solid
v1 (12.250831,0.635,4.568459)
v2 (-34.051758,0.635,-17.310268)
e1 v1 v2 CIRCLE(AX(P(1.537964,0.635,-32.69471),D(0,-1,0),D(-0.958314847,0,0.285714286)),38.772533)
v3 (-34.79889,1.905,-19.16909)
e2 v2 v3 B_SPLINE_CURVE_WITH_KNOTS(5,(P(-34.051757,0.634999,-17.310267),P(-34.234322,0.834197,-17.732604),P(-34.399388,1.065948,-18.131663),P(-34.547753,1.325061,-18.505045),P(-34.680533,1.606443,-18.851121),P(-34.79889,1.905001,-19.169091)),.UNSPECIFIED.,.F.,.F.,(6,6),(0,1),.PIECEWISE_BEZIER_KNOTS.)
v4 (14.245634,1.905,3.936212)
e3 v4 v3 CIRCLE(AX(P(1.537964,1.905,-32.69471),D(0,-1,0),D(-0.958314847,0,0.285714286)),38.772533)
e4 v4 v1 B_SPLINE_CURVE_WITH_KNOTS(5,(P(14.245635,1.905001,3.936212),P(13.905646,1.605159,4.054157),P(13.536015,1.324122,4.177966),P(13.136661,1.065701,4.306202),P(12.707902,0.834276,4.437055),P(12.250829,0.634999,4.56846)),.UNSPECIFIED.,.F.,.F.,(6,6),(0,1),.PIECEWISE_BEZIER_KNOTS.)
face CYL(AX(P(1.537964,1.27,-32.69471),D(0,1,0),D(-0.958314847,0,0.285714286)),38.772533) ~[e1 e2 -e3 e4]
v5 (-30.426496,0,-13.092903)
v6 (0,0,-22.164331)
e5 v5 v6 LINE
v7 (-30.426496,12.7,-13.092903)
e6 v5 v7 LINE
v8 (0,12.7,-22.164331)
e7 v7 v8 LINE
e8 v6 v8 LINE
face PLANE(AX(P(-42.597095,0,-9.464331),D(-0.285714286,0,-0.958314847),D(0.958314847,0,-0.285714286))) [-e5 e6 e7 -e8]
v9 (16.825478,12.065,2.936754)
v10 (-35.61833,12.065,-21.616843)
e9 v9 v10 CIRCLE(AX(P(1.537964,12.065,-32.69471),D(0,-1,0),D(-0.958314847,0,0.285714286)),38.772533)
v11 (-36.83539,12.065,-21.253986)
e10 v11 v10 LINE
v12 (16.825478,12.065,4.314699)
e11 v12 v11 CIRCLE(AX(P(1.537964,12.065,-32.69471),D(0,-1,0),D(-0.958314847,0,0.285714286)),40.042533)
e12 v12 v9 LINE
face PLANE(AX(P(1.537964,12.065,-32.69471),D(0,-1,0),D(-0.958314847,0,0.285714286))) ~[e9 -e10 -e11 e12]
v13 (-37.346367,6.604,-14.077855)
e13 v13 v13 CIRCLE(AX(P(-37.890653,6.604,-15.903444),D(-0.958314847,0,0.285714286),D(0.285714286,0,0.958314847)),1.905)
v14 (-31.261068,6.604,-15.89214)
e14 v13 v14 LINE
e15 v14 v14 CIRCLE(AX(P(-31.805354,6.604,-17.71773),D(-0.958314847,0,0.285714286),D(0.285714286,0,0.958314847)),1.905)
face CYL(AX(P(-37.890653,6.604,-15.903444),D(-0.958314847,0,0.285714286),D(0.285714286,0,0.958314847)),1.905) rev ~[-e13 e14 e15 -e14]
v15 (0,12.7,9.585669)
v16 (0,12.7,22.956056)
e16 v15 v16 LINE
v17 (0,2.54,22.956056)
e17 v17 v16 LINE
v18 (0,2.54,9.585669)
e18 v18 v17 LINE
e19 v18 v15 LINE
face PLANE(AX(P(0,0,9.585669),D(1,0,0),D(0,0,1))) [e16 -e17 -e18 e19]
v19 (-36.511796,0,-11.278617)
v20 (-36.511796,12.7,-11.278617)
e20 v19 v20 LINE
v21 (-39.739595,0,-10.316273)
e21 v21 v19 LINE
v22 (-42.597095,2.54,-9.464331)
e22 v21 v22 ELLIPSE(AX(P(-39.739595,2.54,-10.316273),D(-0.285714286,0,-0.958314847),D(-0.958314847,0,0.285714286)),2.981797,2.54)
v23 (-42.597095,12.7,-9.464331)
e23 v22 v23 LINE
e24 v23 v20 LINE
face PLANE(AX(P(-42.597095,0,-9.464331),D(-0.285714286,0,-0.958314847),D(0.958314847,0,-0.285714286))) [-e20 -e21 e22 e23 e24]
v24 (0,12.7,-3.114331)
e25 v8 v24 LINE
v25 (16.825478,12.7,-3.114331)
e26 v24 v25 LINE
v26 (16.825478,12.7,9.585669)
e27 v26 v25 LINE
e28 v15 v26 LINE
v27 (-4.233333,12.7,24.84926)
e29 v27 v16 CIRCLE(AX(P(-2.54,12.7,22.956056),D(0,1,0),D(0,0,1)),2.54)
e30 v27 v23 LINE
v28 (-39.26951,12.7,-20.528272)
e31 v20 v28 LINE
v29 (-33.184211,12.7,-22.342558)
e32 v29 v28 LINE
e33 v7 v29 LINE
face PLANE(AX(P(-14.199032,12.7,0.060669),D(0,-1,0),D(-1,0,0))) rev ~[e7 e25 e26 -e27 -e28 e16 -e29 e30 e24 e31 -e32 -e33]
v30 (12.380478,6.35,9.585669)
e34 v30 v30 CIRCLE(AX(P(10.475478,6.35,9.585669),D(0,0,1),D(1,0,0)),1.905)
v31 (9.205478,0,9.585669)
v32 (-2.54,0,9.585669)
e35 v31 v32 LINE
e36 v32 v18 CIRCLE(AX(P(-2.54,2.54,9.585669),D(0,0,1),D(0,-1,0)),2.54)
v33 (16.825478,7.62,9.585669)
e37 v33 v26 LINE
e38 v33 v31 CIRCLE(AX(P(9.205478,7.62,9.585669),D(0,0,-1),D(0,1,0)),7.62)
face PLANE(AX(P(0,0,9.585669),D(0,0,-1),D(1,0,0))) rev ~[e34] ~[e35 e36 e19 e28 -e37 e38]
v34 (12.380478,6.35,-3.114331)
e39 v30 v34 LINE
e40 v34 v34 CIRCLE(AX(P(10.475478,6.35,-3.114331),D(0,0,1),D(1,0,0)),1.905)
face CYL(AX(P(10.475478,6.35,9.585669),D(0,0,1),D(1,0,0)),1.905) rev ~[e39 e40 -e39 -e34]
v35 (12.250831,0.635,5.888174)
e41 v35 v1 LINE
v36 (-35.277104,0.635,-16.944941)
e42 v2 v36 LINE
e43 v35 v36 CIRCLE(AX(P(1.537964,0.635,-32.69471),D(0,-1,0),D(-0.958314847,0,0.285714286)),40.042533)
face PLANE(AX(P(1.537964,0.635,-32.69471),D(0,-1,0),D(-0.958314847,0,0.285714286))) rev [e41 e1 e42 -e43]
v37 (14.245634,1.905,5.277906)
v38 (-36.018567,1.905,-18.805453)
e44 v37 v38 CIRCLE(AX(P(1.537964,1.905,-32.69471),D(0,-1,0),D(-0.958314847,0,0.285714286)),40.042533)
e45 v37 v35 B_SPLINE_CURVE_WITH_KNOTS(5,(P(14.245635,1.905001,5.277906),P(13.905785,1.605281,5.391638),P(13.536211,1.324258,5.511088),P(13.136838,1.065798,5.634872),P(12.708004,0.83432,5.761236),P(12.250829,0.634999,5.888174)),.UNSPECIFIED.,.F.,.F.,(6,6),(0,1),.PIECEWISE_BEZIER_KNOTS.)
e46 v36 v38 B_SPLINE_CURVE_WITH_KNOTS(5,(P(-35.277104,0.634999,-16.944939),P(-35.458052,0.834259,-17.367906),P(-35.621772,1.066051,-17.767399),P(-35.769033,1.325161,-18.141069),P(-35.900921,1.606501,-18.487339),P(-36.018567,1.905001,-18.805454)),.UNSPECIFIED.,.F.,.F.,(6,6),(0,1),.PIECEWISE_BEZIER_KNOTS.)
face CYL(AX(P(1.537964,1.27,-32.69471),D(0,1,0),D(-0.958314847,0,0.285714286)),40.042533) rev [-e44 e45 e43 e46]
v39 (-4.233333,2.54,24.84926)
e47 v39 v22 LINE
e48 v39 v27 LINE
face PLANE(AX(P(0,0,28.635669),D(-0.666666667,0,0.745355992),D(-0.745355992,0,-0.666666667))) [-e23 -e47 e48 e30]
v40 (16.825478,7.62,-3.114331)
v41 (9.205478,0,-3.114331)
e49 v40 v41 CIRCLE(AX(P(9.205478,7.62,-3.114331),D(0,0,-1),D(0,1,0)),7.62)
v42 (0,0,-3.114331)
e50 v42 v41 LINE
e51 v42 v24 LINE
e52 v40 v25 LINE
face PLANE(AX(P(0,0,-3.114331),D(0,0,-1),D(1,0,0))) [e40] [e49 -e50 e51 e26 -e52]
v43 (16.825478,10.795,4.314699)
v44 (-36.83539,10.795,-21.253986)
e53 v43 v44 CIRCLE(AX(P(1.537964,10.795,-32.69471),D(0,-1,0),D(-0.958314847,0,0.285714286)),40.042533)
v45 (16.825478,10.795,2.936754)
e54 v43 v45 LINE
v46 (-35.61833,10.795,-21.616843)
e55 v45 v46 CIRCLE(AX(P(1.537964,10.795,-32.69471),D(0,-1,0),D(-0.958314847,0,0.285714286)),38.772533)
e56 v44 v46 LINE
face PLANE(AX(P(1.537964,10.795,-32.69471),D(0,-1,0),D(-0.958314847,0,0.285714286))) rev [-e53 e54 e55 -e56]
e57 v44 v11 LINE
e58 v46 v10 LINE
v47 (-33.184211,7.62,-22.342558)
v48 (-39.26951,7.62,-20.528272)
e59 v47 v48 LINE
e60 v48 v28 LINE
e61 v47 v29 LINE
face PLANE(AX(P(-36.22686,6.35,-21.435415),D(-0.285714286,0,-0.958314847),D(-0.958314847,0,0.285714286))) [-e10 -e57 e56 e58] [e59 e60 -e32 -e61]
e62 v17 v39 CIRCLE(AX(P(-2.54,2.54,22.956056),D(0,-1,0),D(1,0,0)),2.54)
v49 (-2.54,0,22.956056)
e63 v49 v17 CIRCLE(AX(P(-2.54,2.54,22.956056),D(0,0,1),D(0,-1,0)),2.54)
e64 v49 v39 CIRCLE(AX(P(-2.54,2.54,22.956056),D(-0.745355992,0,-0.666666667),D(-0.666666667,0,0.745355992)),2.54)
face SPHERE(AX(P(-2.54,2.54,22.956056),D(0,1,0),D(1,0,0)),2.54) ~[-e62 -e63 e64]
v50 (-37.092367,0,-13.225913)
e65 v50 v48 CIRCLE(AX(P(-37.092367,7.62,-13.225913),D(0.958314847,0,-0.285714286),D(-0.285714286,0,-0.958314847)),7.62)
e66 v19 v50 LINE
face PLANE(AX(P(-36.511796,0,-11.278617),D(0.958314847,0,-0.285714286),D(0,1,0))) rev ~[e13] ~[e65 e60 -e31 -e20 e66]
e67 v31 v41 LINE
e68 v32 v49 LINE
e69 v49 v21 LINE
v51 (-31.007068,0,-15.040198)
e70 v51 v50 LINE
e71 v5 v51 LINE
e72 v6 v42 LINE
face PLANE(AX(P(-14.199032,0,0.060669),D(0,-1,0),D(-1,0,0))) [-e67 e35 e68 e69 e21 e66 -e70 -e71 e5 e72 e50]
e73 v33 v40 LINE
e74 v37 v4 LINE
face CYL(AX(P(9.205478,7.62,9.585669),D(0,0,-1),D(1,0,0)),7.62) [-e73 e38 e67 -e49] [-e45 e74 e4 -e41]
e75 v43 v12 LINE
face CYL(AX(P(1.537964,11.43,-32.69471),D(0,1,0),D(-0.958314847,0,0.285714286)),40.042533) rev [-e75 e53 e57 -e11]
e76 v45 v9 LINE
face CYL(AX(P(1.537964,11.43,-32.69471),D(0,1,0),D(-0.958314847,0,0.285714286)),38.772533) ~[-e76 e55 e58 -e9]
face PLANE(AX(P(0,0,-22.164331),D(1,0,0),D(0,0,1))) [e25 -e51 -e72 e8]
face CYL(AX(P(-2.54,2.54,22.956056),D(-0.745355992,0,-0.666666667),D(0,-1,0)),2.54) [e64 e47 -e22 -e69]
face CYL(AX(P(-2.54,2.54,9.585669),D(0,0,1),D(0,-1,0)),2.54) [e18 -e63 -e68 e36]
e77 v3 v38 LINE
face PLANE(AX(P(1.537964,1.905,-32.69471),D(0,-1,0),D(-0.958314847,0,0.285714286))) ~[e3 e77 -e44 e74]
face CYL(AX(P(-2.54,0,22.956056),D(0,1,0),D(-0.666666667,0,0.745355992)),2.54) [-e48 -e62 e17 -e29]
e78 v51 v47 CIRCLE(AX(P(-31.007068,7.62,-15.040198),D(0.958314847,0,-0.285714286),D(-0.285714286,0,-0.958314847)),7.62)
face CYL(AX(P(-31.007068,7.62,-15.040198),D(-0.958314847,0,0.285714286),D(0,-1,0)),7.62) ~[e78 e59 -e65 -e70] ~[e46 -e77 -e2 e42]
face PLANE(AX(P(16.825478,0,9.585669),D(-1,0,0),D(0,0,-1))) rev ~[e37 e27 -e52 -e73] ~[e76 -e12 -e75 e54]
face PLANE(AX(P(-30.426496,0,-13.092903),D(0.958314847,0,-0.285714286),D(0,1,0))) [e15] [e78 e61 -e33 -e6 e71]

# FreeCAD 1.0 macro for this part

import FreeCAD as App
import Part
import Sketcher
Q = App.Units.Quantity


def edges_at(feature, points):
    """Names of the edges that pass closest to the given points."""
    edges = feature.Shape.Edges
    near = lambda p: min(range(len(edges)), key=lambda i: edges[i].distToShape(Part.Vertex(*p))[0])
    return sorted({f"Edge{near(p) + 1}" for p in points})


def add_polygon(sketch, points):
    """Adds a closed chain of lines whose ends are joined by coincident constraints."""
    first, n = sketch.GeometryCount, len(points)
    for a, b in zip(points, points[1:] + points[:1]):
        sketch.addGeometry(Part.LineSegment(App.Vector(*a, 0), App.Vector(*b, 0)), False)
    for i in range(n):
        sketch.addConstraint(Sketcher.Constraint("Coincident", first + i, 2, first + (i + 1) % n, 1))

doc = App.newDocument("Part")
params = doc.addObject("Spreadsheet::Sheet", "Params")
for row, (alias, value) in enumerate([
    ("sketch1_height", "0.5 in"),
    ("sketch1_height2", "0.75 in"),
    ("sketch1_length", "1.75 in"),
    ("pad1_length", "0.5 in"),
    ("fillet_radius", "0.3 in"),
    ("sketch2_diameter", "0.15 in"),
    ("pocket1_length", "0.5 in"),
    ("sketch3_height", "0.5 in"),
    ("sketch3_width", "0.25 in"),
    ("pad2_length", "0.38 in"),
    ("fillet2_radius", "0.3 in"),
    ("sketch4_diameter", "0.15 in"),
    ("pocket2_length", "0.5 in"),
    ("fillet3_radius", "0.1 in"),
    ("sketch5_width", "0.05 in"),
    ("sketch5_height", "0.45 in"),
    ("groove_angle", "360 deg"),
    ("fillet4_radius", "0.1 in"),
], start=1):
    params.set(f"A{row}", alias)
    params.set(f"B{row}", "=" + value)
    params.setAlias(f"B{row}", alias)

body = doc.addObject("PartDesign::Body", "Body")

# Sketch on XZ plane
sketch1 = doc.addObject("Sketcher::SketchObject", "Sketch")
body.addObject(sketch1)
sketch1.AttachmentSupport = (doc.XZ_Plane, [""])
sketch1.MapMode = "FlatFace"
add_polygon(sketch1, [(0, -22), (-43, -9), (0, 29), (0, 10), (17, 10), (17, -3), (0, -3)])  # lines 0-6
sketch1.addConstraint(Sketcher.Constraint("Vertical", 2))
sketch1.addConstraint(Sketcher.Constraint("Horizontal", 3))
sketch1.addConstraint(Sketcher.Constraint("Vertical", 4))
sketch1.addConstraint(Sketcher.Constraint("Horizontal", 5))
sketch1.addConstraint(Sketcher.Constraint("Vertical", 6))
sketch1.addConstraint(Sketcher.Constraint("PointOnObject", 1, 2, -2))
sketch1.addConstraint(Sketcher.Constraint("PointOnObject", 5, 2, -2))
sketch1.addConstraint(Sketcher.Constraint("Equal", 2, 6))
sketch1.addConstraint(Sketcher.Constraint("DistanceY", 4, 2, 4, 1, Q("0.5 in")))
sketch1.addConstraint(Sketcher.Constraint("DistanceY", 2, 2, 2, 1, Q("0.75 in")))
sketch1.addConstraint(Sketcher.Constraint("DistanceY", 0, 2, 1, 2, Q("1.5 in")))
sketch1.addConstraint(Sketcher.Constraint("Distance", 0, Q("1.75 in")))
sketch1.addConstraint(Sketcher.Constraint("DistanceX", 3, 1, 3, 2, 16.825478))
sketch1.addConstraint(Sketcher.Constraint("DistanceY", 0, 2, -1, 1, 9.464331))
sketch1.setExpression("Constraints[15]", "Params.sketch1_height")
sketch1.setExpression("Constraints[16]", "Params.sketch1_height2")
sketch1.setExpression("Constraints[18]", "Params.sketch1_length")
pad1 = doc.addObject("PartDesign::Pad", "Pad")
body.addObject(pad1)
pad1.Profile = sketch1
pad1.setExpression("Length", "Params.pad1_length")
pad1.Reversed = True
doc.recompute()

fillet = doc.addObject("PartDesign::Fillet", "Fillet")
body.addObject(fillet)
fillet.Base = (pad1, edges_at(pad1, [(16.825, 0, 3.236)]))
fillet.setExpression("Radius", "Params.fillet_radius")

# Sketch on XY plane
sketch2 = doc.addObject("Sketcher::SketchObject", "Sketch001")
body.addObject(sketch2)
sketch2.AttachmentSupport = (doc.XY_Plane, [""])
sketch2.MapMode = "FlatFace"
sketch2.AttachmentOffset = App.Placement(App.Vector(0, 0, 9.585669), App.Rotation())
sketch2.addGeometry(Part.Circle(App.Vector(10.5, 6.3, 0), App.Vector(0, 0, 1), 1.9), False)
sketch2.addConstraint(Sketcher.Constraint("Diameter", 0, Q("0.15 in")))
sketch2.addConstraint(Sketcher.Constraint("DistanceY", -1, 1, 0, 3, Q("0.25 in")))
sketch2.addConstraint(Sketcher.Constraint("DistanceX", -1, 1, 0, 3, 10.475478))
sketch2.setExpression("Constraints[0]", "Params.sketch2_diameter")
pocket1 = doc.addObject("PartDesign::Pocket", "Pocket")
body.addObject(pocket1)
pocket1.Profile = sketch2
pocket1.setExpression("Length", "Params.pocket1_length")

# Sketch on an angled plane
sketch3 = doc.addObject("Sketcher::SketchObject", "Sketch002")
body.addObject(sketch3)
sketch3.Placement = App.Placement(App.Vector(-6.068688, 0, -20.354998), App.Rotation(App.Vector(-0.958314847, 0, 0.285714286), App.Vector(0, 0.999999999, 0), App.Vector(-0.285714286, 0, -0.958314847), "ZXY"))
add_polygon(sketch3, [(25, 13), (25, 0), (32, 0), (32, 13)])  # lines 0-3
sketch3.addConstraint(Sketcher.Constraint("Vertical", 0))
sketch3.addConstraint(Sketcher.Constraint("Horizontal", 1))
sketch3.addConstraint(Sketcher.Constraint("Vertical", 2))
sketch3.addConstraint(Sketcher.Constraint("Horizontal", 3))
sketch3.addConstraint(Sketcher.Constraint("PointOnObject", 0, 2, -1))
sketch3.addConstraint(Sketcher.Constraint("DistanceY", 0, 2, 0, 1, Q("0.5 in")))
sketch3.addConstraint(Sketcher.Constraint("DistanceX", 1, 1, 1, 2, Q("0.25 in")))
sketch3.addConstraint(Sketcher.Constraint("DistanceX", -1, 1, 0, 2, 25.417334))
sketch3.setExpression("Constraints[9]", "Params.sketch3_height")
sketch3.setExpression("Constraints[10]", "Params.sketch3_width")
pad2 = doc.addObject("PartDesign::Pad", "Pad001")
body.addObject(pad2)
pad2.Profile = sketch3
pad2.setExpression("Length", "Params.pad2_length")
doc.recompute()

fillet2 = doc.addObject("PartDesign::Fillet", "Fillet001")
body.addObject(fillet2)
fillet2.Base = (pad2, edges_at(pad2, [(-36.227, 0, -21.435)]))
fillet2.setExpression("Radius", "Params.fillet2_radius")

# Sketch on an angled plane
sketch4 = doc.addObject("Sketcher::SketchObject", "Sketch003")
body.addObject(sketch4)
sketch4.Placement = App.Placement(App.Vector(-30.443108, 0, 9.076381), App.Rotation(App.Vector(0.285714286, 0, 0.958314847), App.Vector(0, 0.999999999, 0), App.Vector(-0.958314847, 0, 0.285714286), "ZXY"))
sketch4.addGeometry(Part.Circle(App.Vector(-26.1, 6.6, 0), App.Vector(0, 0, 1), 1.9), False)
sketch4.addConstraint(Sketcher.Constraint("Diameter", 0, Q("0.15 in")))
sketch4.addConstraint(Sketcher.Constraint("DistanceY", -1, 1, 0, 3, Q("0.26 in")))
sketch4.addConstraint(Sketcher.Constraint("DistanceX", 0, 3, -1, 1, 26.066408))
sketch4.setExpression("Constraints[0]", "Params.sketch4_diameter")
pocket2 = doc.addObject("PartDesign::Pocket", "Pocket001")
body.addObject(pocket2)
pocket2.Profile = sketch4
pocket2.setExpression("Length", "Params.pocket2_length")
doc.recompute()

fillet3 = doc.addObject("PartDesign::Fillet", "Fillet002")
body.addObject(fillet3)
fillet3.Base = (pocket2, edges_at(pocket2, [(0, 6.35, 28.636)]))
fillet3.setExpression("Radius", "Params.fillet3_radius")

# Sketch on an angled plane
sketch5 = doc.addObject("Sketcher::SketchObject", "Sketch004")
body.addObject(sketch5)
sketch5.Placement = App.Placement(App.Vector(-8.826402, 0, -29.604653), App.Rotation(App.Vector(-0.958314847, 0, 0.285714286), App.Vector(0, 0.999999999, 0), App.Vector(-0.285714286, 0, -0.958314847), "ZXY"))
add_polygon(sketch5, [(28, 12.1), (28, 10.8), (29.2, 10.8), (29.2, 12.1)])  # lines 0-3
add_polygon(sketch5, [(28, 1.9), (28, 0.6), (29.2, 0.6), (29.2, 1.9)])  # lines 4-7
sketch5.addGeometry(Part.LineSegment(App.Vector(-10.8, 12.1, 0), App.Vector(-10.8, 0.6, 0)), True)  # axis
sketch5.addConstraint(Sketcher.Constraint("Vertical", 0))
sketch5.addConstraint(Sketcher.Constraint("Horizontal", 1))
sketch5.addConstraint(Sketcher.Constraint("Vertical", 2))
sketch5.addConstraint(Sketcher.Constraint("Horizontal", 3))
sketch5.addConstraint(Sketcher.Constraint("Vertical", 4))
sketch5.addConstraint(Sketcher.Constraint("Horizontal", 5))
sketch5.addConstraint(Sketcher.Constraint("Vertical", 6))
sketch5.addConstraint(Sketcher.Constraint("Horizontal", 7))
sketch5.addConstraint(Sketcher.Constraint("Vertical", 8))
sketch5.addConstraint(Sketcher.Constraint("Horizontal", 3, 2, 8, 1))
sketch5.addConstraint(Sketcher.Constraint("Horizontal", 5, 2, 8, 2))
sketch5.addConstraint(Sketcher.Constraint("Vertical", 3, 2, 4, 2))
sketch5.addConstraint(Sketcher.Constraint("Vertical", 2, 2, 5, 2))
sketch5.addConstraint(Sketcher.Constraint("Equal", 7, 0))
sketch5.addConstraint(Sketcher.Constraint("Equal", 2, 4))
sketch5.addConstraint(Sketcher.Constraint("DistanceX", 1, 1, 1, 2, Q("0.05 in")))
sketch5.addConstraint(Sketcher.Constraint("DistanceY", 8, 2, 8, 1, Q("0.45 in")))
sketch5.addConstraint(Sketcher.Constraint("DistanceY", -1, 1, 0, 2, Q("0.425 in")))
sketch5.addConstraint(Sketcher.Constraint("DistanceX", 8, 1, -1, 1, 10.815199))
sketch5.addConstraint(Sketcher.Constraint("DistanceX", -1, 1, 0, 2, 27.957334))
sketch5.setExpression("Constraints[23]", "Params.sketch5_width")
sketch5.setExpression("Constraints[24]", "Params.sketch5_height")
groove = doc.addObject("PartDesign::Groove", "Groove")
body.addObject(groove)
groove.Profile = sketch5
groove.ReferenceAxis = (sketch5, ["Axis0"])
groove.setExpression("Angle", "Params.groove_angle")
doc.recompute()

fillet4 = doc.addObject("PartDesign::Fillet", "Fillet003")
body.addObject(fillet4)
fillet4.Base = (groove, edges_at(groove, [(0, 0, 16.271), (-23.415, 0, 7.692), (-1.503, 0, 25.275)]))
fillet4.setExpression("Radius", "Params.fillet4_radius")

doc.recompute()
